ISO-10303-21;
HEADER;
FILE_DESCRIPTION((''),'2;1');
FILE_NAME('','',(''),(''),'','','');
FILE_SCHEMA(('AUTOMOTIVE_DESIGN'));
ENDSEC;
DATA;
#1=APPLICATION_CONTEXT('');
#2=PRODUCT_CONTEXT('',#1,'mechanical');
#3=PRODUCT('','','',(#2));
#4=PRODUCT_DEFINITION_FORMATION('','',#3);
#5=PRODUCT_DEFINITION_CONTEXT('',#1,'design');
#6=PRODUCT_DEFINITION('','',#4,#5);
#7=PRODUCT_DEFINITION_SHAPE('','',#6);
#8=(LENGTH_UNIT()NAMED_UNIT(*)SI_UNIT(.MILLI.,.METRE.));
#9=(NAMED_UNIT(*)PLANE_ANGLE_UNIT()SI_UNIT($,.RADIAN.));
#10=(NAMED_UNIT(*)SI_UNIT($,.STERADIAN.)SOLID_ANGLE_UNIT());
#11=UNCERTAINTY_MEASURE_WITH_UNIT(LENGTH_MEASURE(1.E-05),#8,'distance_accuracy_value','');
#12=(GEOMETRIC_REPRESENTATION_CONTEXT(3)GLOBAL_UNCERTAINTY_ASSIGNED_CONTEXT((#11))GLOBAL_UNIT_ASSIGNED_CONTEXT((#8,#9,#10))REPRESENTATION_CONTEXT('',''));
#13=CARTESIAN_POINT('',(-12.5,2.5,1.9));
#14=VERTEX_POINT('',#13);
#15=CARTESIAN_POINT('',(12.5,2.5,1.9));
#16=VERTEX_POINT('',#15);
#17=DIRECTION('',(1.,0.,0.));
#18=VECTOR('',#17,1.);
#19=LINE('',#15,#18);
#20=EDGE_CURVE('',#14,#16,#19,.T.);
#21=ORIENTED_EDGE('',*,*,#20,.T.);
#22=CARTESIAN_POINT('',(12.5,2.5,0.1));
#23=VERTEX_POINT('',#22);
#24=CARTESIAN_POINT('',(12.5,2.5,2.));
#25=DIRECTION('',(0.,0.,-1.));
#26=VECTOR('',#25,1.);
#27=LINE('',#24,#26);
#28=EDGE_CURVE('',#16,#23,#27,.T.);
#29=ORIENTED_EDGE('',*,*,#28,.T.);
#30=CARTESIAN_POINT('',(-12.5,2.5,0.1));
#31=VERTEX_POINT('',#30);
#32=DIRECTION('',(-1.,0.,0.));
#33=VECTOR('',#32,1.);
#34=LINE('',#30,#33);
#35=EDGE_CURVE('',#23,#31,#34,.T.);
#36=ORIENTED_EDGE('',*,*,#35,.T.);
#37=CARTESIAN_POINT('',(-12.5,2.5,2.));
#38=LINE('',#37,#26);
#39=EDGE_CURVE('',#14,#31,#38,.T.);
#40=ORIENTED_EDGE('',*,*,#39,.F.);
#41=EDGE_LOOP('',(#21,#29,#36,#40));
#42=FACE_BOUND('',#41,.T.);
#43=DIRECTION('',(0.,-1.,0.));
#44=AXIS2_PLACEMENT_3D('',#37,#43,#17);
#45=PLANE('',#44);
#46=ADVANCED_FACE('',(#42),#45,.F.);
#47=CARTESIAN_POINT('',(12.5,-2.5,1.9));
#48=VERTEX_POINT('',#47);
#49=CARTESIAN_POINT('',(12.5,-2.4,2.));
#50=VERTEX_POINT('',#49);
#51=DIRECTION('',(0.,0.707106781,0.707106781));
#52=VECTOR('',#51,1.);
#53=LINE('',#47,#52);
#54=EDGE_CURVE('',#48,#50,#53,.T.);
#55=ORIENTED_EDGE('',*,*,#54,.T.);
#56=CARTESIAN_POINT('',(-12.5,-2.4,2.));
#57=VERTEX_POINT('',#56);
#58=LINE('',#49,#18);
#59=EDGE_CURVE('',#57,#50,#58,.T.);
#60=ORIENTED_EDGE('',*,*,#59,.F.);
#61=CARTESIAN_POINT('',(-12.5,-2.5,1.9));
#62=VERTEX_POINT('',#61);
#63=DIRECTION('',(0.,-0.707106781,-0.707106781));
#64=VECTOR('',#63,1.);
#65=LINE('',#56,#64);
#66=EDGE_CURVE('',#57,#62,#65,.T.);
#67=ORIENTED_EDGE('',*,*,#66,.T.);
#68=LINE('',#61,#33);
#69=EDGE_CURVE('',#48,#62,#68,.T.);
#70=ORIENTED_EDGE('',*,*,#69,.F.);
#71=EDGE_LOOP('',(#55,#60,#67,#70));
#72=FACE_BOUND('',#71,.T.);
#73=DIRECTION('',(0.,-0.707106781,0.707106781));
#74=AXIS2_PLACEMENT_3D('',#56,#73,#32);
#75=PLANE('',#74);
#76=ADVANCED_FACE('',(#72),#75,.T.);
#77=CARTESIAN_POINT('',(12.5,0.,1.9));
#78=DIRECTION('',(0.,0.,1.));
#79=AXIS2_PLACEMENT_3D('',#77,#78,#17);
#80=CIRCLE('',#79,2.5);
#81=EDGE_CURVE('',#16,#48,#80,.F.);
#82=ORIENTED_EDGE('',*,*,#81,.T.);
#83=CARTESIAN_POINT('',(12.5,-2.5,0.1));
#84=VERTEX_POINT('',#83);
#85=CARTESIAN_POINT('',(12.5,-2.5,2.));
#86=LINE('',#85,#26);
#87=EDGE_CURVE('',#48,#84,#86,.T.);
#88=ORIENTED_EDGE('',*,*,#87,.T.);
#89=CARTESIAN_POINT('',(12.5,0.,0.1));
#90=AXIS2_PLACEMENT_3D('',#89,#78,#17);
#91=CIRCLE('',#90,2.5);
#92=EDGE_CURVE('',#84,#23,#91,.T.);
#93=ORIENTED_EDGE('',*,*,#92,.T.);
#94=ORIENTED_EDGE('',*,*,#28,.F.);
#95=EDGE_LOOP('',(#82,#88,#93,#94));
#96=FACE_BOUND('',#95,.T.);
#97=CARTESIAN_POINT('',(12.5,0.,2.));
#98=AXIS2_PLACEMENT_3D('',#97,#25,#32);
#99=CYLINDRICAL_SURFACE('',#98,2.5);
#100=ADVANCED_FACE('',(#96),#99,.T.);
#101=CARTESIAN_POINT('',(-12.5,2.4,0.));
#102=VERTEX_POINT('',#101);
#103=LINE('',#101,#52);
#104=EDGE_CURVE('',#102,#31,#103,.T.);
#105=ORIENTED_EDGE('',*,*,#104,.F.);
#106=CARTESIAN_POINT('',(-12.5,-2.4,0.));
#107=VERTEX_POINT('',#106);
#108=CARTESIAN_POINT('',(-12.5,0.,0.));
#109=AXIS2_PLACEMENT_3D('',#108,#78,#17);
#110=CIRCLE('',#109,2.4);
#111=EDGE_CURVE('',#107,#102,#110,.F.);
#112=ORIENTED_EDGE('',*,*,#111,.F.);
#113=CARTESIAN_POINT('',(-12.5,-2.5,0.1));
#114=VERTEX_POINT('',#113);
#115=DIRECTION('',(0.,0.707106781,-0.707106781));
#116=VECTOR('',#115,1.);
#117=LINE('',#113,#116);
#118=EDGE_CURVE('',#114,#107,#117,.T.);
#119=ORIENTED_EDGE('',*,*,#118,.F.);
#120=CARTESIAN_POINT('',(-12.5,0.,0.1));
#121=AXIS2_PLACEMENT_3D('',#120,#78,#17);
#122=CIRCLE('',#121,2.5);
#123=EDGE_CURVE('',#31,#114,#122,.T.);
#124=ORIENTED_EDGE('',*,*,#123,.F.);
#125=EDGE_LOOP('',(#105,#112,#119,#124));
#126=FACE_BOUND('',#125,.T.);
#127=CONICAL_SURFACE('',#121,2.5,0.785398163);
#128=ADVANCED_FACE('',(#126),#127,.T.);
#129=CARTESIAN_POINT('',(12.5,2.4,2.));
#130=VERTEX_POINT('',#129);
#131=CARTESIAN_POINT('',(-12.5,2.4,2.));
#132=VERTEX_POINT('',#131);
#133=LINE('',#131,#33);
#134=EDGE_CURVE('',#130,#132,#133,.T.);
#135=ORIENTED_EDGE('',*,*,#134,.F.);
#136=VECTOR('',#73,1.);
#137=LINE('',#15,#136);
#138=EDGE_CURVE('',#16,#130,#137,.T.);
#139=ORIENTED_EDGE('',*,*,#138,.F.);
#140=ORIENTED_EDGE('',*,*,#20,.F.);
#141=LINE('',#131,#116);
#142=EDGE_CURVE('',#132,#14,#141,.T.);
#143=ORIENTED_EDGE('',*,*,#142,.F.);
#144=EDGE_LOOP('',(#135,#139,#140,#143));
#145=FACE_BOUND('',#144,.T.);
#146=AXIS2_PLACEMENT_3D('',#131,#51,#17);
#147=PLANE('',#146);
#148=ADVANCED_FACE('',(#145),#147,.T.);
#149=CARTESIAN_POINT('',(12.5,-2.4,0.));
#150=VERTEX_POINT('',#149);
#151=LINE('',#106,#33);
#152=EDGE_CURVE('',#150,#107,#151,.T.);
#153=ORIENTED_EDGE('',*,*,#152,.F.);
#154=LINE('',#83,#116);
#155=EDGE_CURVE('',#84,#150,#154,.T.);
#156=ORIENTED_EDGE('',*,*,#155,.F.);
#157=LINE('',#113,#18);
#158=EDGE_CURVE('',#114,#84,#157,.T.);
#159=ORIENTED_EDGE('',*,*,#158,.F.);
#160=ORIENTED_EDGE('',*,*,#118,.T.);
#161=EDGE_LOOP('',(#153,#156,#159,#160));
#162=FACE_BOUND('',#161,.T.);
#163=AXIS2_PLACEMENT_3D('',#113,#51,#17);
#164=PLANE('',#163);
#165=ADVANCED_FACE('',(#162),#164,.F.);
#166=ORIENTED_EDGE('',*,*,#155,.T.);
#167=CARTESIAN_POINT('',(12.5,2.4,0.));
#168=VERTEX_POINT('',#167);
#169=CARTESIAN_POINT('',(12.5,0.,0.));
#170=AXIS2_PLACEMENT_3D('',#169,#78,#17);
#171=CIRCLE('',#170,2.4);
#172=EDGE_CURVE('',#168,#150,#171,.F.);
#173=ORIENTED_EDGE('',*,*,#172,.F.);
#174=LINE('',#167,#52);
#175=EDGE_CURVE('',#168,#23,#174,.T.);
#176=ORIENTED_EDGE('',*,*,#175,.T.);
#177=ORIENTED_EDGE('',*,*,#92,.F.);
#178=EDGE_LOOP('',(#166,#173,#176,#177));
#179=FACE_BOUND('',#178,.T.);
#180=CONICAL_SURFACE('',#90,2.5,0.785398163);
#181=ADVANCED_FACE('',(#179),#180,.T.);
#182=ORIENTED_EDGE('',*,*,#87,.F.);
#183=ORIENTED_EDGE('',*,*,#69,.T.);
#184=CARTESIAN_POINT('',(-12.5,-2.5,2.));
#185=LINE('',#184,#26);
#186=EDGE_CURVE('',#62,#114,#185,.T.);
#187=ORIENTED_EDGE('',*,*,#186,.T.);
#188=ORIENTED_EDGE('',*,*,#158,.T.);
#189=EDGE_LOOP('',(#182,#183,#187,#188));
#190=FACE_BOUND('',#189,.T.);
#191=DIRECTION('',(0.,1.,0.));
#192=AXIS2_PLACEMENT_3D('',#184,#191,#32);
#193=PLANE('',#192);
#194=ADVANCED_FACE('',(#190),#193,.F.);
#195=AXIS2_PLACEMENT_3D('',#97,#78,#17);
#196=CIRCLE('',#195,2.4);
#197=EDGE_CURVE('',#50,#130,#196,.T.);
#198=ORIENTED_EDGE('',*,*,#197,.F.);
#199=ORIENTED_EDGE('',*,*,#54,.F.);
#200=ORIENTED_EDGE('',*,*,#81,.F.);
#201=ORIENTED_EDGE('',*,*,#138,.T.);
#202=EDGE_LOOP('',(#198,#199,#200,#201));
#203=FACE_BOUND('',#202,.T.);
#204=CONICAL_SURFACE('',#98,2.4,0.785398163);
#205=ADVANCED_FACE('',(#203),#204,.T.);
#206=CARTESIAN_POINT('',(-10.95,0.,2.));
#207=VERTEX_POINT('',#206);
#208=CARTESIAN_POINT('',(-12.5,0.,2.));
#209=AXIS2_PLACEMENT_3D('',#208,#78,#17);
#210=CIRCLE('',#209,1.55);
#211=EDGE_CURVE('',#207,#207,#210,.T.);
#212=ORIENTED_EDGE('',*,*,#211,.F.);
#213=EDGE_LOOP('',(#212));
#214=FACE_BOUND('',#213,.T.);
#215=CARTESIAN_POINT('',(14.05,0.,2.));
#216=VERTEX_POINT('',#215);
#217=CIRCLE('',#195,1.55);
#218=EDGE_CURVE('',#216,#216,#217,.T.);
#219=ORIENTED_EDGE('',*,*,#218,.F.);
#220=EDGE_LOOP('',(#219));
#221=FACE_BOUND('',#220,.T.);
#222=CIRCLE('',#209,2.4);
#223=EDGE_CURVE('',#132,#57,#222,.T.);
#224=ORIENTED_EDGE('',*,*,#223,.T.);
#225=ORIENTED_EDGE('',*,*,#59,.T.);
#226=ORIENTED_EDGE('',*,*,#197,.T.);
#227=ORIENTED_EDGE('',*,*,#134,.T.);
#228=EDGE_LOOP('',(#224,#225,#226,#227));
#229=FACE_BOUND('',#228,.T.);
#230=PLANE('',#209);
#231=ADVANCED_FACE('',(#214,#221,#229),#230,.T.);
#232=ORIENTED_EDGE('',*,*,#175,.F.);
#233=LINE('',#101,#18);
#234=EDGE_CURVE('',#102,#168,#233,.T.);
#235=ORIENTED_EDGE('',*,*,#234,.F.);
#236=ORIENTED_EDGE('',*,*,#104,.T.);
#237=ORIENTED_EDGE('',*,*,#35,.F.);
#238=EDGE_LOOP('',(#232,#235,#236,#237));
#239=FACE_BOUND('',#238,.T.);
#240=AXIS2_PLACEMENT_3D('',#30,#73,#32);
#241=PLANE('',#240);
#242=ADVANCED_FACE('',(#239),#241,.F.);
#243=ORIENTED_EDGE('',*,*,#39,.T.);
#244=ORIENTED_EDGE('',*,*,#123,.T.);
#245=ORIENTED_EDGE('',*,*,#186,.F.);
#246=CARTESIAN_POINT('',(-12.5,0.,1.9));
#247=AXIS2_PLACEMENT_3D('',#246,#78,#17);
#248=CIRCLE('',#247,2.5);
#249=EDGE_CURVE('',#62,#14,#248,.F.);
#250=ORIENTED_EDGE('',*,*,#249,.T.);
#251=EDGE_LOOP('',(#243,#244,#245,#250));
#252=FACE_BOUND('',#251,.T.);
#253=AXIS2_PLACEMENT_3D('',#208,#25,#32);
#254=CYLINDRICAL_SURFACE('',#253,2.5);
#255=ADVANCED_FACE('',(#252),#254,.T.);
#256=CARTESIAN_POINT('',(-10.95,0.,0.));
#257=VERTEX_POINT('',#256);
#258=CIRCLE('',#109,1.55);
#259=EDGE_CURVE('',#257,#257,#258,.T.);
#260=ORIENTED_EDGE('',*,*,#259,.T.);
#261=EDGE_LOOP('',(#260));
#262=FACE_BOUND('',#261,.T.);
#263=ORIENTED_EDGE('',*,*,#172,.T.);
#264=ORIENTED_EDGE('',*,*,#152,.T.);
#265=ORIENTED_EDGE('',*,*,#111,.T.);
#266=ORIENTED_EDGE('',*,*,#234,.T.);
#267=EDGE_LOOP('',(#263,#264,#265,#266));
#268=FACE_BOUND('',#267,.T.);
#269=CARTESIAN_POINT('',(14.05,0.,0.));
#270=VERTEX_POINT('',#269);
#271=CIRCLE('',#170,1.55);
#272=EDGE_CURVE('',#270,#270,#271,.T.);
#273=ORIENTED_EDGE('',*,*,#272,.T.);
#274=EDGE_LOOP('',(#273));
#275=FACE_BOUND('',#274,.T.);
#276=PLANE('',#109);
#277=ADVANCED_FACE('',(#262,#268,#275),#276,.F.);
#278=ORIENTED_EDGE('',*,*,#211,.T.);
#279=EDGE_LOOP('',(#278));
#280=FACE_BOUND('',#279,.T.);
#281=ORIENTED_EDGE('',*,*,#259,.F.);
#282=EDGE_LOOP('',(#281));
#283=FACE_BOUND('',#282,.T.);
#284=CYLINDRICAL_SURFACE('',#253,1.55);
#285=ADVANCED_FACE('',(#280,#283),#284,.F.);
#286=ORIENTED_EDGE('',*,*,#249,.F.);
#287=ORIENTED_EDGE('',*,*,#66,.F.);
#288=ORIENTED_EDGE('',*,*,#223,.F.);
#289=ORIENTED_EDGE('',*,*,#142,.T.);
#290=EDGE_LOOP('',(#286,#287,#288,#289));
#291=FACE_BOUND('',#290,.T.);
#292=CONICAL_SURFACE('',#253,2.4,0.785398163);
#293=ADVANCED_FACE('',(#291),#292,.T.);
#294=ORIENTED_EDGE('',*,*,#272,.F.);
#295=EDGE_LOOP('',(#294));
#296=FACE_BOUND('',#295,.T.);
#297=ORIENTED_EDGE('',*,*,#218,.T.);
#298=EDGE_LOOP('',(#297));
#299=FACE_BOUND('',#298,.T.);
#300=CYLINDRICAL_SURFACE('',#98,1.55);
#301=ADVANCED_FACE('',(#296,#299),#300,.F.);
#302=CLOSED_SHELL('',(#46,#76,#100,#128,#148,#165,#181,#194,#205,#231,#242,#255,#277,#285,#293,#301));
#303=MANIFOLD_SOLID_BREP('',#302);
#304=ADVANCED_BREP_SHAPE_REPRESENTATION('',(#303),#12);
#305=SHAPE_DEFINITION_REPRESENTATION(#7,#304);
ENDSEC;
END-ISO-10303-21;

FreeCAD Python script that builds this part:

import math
import FreeCAD as App
import Part
import Sketcher
Q = App.Units.Quantity


def edges_at(feature, points):
    """Names of the edges that pass closest to the given points."""
    edges = feature.Shape.Edges
    near = lambda p: min(range(len(edges)), key=lambda i: edges[i].distToShape(Part.Vertex(*p))[0])
    return sorted({f"Edge{near(p) + 1}" for p in points})

doc = App.newDocument("Part")
body = doc.addObject("PartDesign::Body", "Body")

# Sketch on XY plane
sketch1 = doc.addObject("Sketcher::SketchObject", "Sketch")
body.addObject(sketch1)
sketch1.AttachmentSupport = (doc.XY_Plane, [""])
sketch1.MapMode = "FlatFace"
sketch1.addGeometry([
    Part.LineSegment(App.Vector(12.5, 2.5, 0), App.Vector(-12.5, 2.5, 0)),  # 0
    Part.ArcOfCircle(Part.Circle(App.Vector(-12.5, 0, 0), App.Vector(0, 0, 1), 2.5), math.radians(90), math.radians(270)),  # 1
    Part.LineSegment(App.Vector(-12.5, -2.5, 0), App.Vector(12.5, -2.5, 0)),  # 2
    Part.ArcOfCircle(Part.Circle(App.Vector(12.5, 0, 0), App.Vector(0, 0, 1), 2.5), math.radians(-90), math.radians(90)),  # 3
    Part.Circle(App.Vector(12.5, 0, 0), App.Vector(0, 0, 1), 1.6),  # 4
    Part.Circle(App.Vector(-12.5, 0, 0), App.Vector(0, 0, 1), 1.6),  # 5
], False)
sketch1.addConstraint([
    Sketcher.Constraint("Tangent", 0, 2, 1, 1),
    Sketcher.Constraint("Tangent", 1, 2, 2, 1),
    Sketcher.Constraint("Tangent", 2, 2, 3, 1),
    Sketcher.Constraint("Tangent", 3, 2, 0, 1),
    Sketcher.Constraint("Horizontal", 0),
    Sketcher.Constraint("Horizontal", 2),
    Sketcher.Constraint("Coincident", 4, 3, 3, 3),
    Sketcher.Constraint("Coincident", 5, 3, 1, 3),
    Sketcher.Constraint("Equal", 4, 5),
    Sketcher.Constraint("Symmetric", 1, 3, 3, 3, -1, 1),
    Sketcher.Constraint("Diameter", 4, Q("3.1 mm")),
    Sketcher.Constraint("Radius", 1, Q("2.5 mm")),
    Sketcher.Constraint("DistanceX", 0, 2, 0, 1, Q("25 mm")),
])
pad1 = doc.addObject("PartDesign::Pad", "Pad")
body.addObject(pad1)
pad1.Profile = sketch1
pad1.Length = 2
doc.recompute()

chamfer = doc.addObject("PartDesign::Chamfer", "Chamfer")
body.addObject(chamfer)
chamfer.Base = (pad1, edges_at(pad1, [
    (15, 0, 2),
    (0, 2.5, 2),
    (-15, 0, 2),
    (0, 2.5, 0),
    (15, 0, 0),
    (0, -2.5, 0),
    (-15, 0, 0),
    (0, -2.5, 2),
]))
chamfer.Size = 0.1

doc.recompute()
